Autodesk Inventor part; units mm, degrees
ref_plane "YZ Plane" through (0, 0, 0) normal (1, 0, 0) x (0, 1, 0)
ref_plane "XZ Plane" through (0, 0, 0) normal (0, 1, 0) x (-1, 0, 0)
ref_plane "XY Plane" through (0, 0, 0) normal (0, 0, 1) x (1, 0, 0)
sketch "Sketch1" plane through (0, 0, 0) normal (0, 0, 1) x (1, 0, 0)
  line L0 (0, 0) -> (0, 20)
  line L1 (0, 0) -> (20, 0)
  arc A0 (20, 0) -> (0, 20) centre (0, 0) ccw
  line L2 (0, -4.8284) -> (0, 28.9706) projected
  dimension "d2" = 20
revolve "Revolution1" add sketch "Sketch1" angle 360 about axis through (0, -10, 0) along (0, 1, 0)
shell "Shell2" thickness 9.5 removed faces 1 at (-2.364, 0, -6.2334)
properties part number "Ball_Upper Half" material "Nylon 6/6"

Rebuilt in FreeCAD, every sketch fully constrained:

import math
import FreeCAD as App
import Part
import Sketcher
from FreeCAD import Vector
Q = App.Units.Quantity


def faces_at(feature, points):
    """Names of the faces that lie closest to the given points."""
    faces = feature.Shape.Faces
    near = lambda p: min(range(len(faces)), key=lambda i: faces[i].distToShape(Part.Vertex(*p))[0])
    return sorted({f"Face{near(p) + 1}" for p in points})

doc = App.newDocument("Part")
body = doc.addObject("PartDesign::Body", "Body")

sketch1 = body.newObject("Sketcher::SketchObject", "Sketch")
sketch1.AttachmentSupport = (doc.getObject("XY_Plane"), [""])
sketch1.MapMode = "FlatFace"
sketch1.addGeometry(Part.LineSegment(Vector(0, 20, 0), Vector(0, 0, 0)), False)
sketch1.addGeometry(Part.LineSegment(Vector(0, 0, 0), Vector(20, 0, 0)), False)
sketch1.addGeometry(Part.ArcOfCircle(Part.Circle(Vector(0, 0, 0), Vector(0, 0, 1), 20), math.radians(0), math.radians(90)), False)
sketch1.addConstraint(Sketcher.Constraint("Coincident", 0, 2, 1, 1))
sketch1.addConstraint(Sketcher.Constraint("Coincident", 1, 2, 2, 1))
sketch1.addConstraint(Sketcher.Constraint("Coincident", 2, 2, 0, 1))
sketch1.addConstraint(Sketcher.Constraint("Vertical", 0))
sketch1.addConstraint(Sketcher.Constraint("Horizontal", 1))
sketch1.addConstraint(Sketcher.Constraint("Coincident", 2, 3, -1, 1))
sketch1.addConstraint(Sketcher.Constraint("Coincident", 0, 2, -1, 1))
sketch1.addConstraint(Sketcher.Constraint("Radius", 2, Q("20 mm")))
revolution = body.newObject("PartDesign::Revolution", "Revolution")
revolution.Profile = sketch1
revolution.ReferenceAxis = (sketch1, ["V_Axis"])
revolution.Angle = 360
doc.recompute()

thickness = body.newObject("PartDesign::Thickness", "Thickness")
thickness.Base = (revolution, faces_at(revolution, [(-2.364, 0, -6.233)]))
thickness.Value = 9.5
thickness.Reversed = True
thickness.Join = "Intersection"

doc.recompute()
